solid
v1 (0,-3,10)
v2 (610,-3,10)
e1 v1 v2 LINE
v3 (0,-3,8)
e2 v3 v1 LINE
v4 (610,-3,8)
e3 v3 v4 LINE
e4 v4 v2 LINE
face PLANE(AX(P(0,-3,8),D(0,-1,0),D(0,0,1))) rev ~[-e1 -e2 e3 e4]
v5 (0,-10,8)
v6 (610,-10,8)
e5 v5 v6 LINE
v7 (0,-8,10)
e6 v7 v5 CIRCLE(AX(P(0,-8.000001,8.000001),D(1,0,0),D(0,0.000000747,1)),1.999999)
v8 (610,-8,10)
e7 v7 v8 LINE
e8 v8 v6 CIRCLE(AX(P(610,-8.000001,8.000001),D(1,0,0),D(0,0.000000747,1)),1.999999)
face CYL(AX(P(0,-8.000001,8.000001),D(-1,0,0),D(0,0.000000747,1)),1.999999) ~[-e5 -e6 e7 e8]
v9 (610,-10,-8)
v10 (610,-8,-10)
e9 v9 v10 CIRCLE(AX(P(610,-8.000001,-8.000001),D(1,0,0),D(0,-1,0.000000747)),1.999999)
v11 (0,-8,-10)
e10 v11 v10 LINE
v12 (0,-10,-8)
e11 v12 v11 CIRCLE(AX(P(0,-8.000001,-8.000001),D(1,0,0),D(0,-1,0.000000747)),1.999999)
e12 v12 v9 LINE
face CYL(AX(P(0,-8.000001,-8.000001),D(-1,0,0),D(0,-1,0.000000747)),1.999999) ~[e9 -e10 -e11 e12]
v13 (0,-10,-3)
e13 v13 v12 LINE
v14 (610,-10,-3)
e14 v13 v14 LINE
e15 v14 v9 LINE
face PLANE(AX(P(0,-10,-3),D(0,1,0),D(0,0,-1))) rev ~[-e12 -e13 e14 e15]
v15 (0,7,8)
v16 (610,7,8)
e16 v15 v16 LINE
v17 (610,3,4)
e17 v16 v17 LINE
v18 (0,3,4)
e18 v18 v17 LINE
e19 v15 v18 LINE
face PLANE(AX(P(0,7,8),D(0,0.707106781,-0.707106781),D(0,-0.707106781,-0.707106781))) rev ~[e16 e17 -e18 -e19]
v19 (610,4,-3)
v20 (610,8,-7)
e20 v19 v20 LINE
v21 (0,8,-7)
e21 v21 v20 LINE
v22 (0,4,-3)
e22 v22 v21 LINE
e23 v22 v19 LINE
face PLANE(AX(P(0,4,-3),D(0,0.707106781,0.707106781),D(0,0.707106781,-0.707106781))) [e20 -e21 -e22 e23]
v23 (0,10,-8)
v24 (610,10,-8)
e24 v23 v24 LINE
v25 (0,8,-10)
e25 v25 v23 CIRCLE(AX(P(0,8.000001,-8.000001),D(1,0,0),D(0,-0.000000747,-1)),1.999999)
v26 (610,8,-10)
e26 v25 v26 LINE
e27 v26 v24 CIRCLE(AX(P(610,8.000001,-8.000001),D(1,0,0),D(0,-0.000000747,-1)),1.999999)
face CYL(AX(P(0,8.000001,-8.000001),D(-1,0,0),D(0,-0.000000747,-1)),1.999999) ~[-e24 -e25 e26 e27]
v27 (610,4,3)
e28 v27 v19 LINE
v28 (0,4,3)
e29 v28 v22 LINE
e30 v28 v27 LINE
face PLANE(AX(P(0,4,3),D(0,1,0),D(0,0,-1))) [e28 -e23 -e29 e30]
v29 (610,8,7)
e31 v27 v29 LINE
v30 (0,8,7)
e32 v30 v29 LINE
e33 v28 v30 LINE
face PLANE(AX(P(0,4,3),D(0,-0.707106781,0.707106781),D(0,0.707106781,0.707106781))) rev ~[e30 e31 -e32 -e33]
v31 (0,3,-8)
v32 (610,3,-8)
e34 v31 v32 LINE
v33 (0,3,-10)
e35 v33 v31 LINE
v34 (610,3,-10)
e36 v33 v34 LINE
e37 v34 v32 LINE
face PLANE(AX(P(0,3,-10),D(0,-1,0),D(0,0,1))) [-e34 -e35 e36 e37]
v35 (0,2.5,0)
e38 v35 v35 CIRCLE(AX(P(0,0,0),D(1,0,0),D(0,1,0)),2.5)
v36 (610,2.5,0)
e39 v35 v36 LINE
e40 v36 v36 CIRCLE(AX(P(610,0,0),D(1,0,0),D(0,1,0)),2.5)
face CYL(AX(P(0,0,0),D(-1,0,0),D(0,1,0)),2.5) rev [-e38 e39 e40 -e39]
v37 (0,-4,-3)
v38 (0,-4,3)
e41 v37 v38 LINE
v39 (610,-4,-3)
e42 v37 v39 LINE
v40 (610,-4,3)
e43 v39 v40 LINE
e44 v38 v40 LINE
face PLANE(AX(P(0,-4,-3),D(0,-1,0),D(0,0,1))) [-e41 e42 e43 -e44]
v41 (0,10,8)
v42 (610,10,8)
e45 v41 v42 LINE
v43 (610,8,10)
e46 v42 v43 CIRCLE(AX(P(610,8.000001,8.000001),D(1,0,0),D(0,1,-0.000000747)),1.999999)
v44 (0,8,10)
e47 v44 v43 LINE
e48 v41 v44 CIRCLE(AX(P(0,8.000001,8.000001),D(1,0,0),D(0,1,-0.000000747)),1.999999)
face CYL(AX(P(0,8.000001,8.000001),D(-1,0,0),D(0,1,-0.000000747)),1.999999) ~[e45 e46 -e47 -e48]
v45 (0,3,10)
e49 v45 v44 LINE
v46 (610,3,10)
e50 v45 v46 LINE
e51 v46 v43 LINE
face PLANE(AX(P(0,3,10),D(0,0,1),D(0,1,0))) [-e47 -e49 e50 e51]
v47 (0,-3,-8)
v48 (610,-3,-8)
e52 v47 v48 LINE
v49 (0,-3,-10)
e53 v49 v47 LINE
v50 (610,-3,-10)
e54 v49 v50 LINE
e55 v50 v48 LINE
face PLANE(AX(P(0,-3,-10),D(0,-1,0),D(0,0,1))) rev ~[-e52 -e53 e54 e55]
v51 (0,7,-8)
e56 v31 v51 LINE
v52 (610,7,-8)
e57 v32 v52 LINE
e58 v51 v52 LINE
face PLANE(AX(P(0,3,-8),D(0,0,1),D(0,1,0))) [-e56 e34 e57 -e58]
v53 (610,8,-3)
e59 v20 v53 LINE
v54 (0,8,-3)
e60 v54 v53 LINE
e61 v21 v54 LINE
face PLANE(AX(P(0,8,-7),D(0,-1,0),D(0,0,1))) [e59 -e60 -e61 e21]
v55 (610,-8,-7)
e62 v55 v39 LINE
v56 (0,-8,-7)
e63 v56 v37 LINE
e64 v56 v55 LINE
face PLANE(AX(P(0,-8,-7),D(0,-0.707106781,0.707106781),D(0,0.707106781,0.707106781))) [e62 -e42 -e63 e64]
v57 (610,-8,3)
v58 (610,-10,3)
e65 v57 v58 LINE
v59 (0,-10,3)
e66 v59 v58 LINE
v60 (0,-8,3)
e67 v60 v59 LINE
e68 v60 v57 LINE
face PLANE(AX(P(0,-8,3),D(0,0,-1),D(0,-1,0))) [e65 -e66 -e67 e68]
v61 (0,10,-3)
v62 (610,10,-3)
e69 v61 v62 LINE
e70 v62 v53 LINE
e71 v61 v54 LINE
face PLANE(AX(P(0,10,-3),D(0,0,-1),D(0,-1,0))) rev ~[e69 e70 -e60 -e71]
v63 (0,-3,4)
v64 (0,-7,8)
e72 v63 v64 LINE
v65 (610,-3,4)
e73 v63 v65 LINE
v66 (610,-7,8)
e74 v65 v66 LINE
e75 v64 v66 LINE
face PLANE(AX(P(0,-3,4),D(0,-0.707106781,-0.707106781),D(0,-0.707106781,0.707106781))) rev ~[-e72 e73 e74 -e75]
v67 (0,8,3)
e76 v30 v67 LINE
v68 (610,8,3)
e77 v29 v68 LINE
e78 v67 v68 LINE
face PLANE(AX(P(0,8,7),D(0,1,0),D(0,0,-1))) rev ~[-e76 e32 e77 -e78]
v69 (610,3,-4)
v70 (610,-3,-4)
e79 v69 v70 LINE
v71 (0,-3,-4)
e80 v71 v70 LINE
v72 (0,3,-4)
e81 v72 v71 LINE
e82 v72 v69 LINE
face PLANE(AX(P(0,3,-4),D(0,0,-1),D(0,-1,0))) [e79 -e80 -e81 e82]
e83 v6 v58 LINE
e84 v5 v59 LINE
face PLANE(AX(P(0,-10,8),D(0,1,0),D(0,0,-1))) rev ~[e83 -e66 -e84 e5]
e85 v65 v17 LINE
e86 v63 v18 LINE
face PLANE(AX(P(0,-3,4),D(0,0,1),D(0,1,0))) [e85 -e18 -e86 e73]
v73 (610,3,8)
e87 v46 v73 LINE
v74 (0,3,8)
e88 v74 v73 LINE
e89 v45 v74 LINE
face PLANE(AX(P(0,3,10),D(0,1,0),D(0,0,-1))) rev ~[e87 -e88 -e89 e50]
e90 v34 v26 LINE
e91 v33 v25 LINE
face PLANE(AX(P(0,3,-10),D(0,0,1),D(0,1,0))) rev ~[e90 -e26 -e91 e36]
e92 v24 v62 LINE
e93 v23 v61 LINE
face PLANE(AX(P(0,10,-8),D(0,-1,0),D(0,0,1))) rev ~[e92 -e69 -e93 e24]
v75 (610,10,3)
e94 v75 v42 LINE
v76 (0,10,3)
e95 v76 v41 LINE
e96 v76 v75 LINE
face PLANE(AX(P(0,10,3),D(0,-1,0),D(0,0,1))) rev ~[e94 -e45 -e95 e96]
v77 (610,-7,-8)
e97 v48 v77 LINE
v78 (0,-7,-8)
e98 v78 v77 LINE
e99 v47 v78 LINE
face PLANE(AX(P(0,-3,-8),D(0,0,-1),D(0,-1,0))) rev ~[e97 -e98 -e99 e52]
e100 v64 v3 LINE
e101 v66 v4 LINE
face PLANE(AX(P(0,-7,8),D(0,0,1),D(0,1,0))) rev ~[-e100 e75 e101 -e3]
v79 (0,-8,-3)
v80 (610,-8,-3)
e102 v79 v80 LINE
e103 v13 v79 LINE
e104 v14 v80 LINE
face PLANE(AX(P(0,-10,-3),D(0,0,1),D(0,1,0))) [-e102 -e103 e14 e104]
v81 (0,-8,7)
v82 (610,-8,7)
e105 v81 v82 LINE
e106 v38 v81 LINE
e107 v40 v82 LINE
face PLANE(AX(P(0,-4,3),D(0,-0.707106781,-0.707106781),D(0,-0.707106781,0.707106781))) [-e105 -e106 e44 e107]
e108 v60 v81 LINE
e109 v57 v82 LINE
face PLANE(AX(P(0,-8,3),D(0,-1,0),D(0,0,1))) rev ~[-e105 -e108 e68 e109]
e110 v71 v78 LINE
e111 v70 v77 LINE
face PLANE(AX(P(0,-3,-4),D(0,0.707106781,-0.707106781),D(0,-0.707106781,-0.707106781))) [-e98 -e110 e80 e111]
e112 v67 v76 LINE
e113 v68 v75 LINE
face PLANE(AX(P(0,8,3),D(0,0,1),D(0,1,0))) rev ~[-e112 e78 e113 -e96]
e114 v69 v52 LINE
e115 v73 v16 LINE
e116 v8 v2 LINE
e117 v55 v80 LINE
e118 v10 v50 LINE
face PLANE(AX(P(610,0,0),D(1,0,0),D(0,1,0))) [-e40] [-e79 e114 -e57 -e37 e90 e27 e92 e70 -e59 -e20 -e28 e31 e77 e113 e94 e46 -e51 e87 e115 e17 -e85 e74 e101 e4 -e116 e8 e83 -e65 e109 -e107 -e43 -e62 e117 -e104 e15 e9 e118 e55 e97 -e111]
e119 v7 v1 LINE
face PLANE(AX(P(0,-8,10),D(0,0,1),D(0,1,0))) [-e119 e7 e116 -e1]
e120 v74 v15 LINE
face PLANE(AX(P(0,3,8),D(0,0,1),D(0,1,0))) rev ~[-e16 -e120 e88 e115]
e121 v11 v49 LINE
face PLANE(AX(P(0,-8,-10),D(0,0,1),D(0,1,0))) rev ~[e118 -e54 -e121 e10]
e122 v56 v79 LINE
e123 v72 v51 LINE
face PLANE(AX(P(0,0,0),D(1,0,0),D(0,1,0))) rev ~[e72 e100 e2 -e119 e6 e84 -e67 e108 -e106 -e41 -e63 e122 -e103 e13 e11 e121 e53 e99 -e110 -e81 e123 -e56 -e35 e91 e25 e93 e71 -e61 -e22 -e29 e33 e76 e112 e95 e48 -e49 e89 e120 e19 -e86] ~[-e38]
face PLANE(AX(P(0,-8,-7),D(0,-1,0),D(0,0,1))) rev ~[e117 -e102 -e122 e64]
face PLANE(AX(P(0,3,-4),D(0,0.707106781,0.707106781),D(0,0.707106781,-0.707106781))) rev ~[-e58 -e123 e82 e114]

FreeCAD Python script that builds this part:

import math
import FreeCAD as App
import Part
import Sketcher

V = App.Vector
Q = App.Units.Quantity

doc = App.newDocument("Part")
body = doc.addObject("PartDesign::Body", "Body")

# Sketch on YZ plane
sketch1 = body.newObject("Sketcher::SketchObject", "Sketch")
sketch1.AttachmentSupport = (doc.getObject("YZ_Plane"), [""])
sketch1.MapMode = "FlatFace"
sketch1.addGeometry([
    Part.ArcOfCircle(Part.Circle(V(-8.000001, 8.000001, 0), V(0, 0, 1), 1.999999), math.radians(89.999957), math.radians(180.000043)),  # 0
    Part.LineSegment(V(-10, 8, 0), V(-10, 3, 0)),  # 1
    Part.LineSegment(V(-10, 3, 0), V(-8, 3, 0)),  # 2
    Part.LineSegment(V(-8, 3, 0), V(-8, 7, 0)),  # 3
    Part.LineSegment(V(-8, 7, 0), V(-4, 3, 0)),  # 4
    Part.LineSegment(V(-4, 3, 0), V(-4, -3, 0)),  # 5
    Part.LineSegment(V(-4, -3, 0), V(-8, -7, 0)),  # 6
    Part.LineSegment(V(-8, -7, 0), V(-8, -3, 0)),  # 7
    Part.LineSegment(V(-8, -3, 0), V(-10, -3, 0)),  # 8
    Part.LineSegment(V(-10, -3, 0), V(-10, -8, 0)),  # 9
    Part.ArcOfCircle(Part.Circle(V(-8.000001, -8.000001, 0), V(0, 0, 1), 1.999999), math.radians(179.999957), math.radians(270.000043)),  # 10
    Part.LineSegment(V(-8, -10, 0), V(-3, -10, 0)),  # 11
    Part.LineSegment(V(-3, -10, 0), V(-3, -8, 0)),  # 12
    Part.LineSegment(V(-3, -8, 0), V(-7, -8, 0)),  # 13
    Part.LineSegment(V(-7, -8, 0), V(-3, -4, 0)),  # 14
    Part.LineSegment(V(-3, -4, 0), V(3, -4, 0)),  # 15
    Part.LineSegment(V(3, -4, 0), V(7, -8, 0)),  # 16
    Part.LineSegment(V(7, -8, 0), V(3, -8, 0)),  # 17
    Part.LineSegment(V(3, -8, 0), V(3, -10, 0)),  # 18
    Part.LineSegment(V(3, -10, 0), V(8, -10, 0)),  # 19
    Part.ArcOfCircle(Part.Circle(V(8.000001, -8.000001, 0), V(0, 0, 1), 1.999999), math.radians(-90.000043), math.radians(0.000043)),  # 20
    Part.LineSegment(V(10, -8, 0), V(10, -3, 0)),  # 21
    Part.LineSegment(V(10, -3, 0), V(8, -3, 0)),  # 22
    Part.LineSegment(V(8, -3, 0), V(8, -7, 0)),  # 23
    Part.LineSegment(V(8, -7, 0), V(4, -3, 0)),  # 24
    Part.LineSegment(V(4, -3, 0), V(4, 3, 0)),  # 25
    Part.LineSegment(V(4, 3, 0), V(8, 7, 0)),  # 26
    Part.LineSegment(V(8, 7, 0), V(8, 3, 0)),  # 27
    Part.LineSegment(V(8, 3, 0), V(10, 3, 0)),  # 28
    Part.LineSegment(V(10, 3, 0), V(10, 8, 0)),  # 29
    Part.ArcOfCircle(Part.Circle(V(8.000001, 8.000001, 0), V(0, 0, 1), 1.999999), math.radians(-0.000043), math.radians(90.000043)),  # 30
    Part.LineSegment(V(8, 10, 0), V(3, 10, 0)),  # 31
    Part.LineSegment(V(3, 10, 0), V(3, 8, 0)),  # 32
    Part.LineSegment(V(3, 8, 0), V(7, 8, 0)),  # 33
    Part.LineSegment(V(7, 8, 0), V(3, 4, 0)),  # 34
    Part.LineSegment(V(3, 4, 0), V(-3, 4, 0)),  # 35
    Part.LineSegment(V(-3, 4, 0), V(-7, 8, 0)),  # 36
    Part.LineSegment(V(-7, 8, 0), V(-3, 8, 0)),  # 37
    Part.LineSegment(V(-3, 8, 0), V(-3, 10, 0)),  # 38
    Part.LineSegment(V(-3, 10, 0), V(-8, 10, 0)),  # 39
    Part.Circle(V(0, 0, 0), V(0, 0, 1), 2.5),  # 40
], False)
sketch1.addConstraint([
    Sketcher.Constraint("Tangent", 0, 2, 1, 1),
    Sketcher.Constraint("Coincident", 1, 2, 2, 1),
    Sketcher.Constraint("Coincident", 2, 2, 3, 1),
    Sketcher.Constraint("Coincident", 3, 2, 4, 1),
    Sketcher.Constraint("Coincident", 4, 2, 5, 1),
    Sketcher.Constraint("Coincident", 5, 2, 6, 1),
    Sketcher.Constraint("Coincident", 6, 2, 7, 1),
    Sketcher.Constraint("Coincident", 7, 2, 8, 1),
    Sketcher.Constraint("Coincident", 8, 2, 9, 1),
    Sketcher.Constraint("Tangent", 9, 2, 10, 1),
    Sketcher.Constraint("Tangent", 10, 2, 11, 1),
    Sketcher.Constraint("Coincident", 11, 2, 12, 1),
    Sketcher.Constraint("Coincident", 12, 2, 13, 1),
    Sketcher.Constraint("Coincident", 13, 2, 14, 1),
    Sketcher.Constraint("Coincident", 14, 2, 15, 1),
    Sketcher.Constraint("Coincident", 15, 2, 16, 1),
    Sketcher.Constraint("Coincident", 16, 2, 17, 1),
    Sketcher.Constraint("Coincident", 17, 2, 18, 1),
    Sketcher.Constraint("Coincident", 18, 2, 19, 1),
    Sketcher.Constraint("Tangent", 19, 2, 20, 1),
    Sketcher.Constraint("Tangent", 20, 2, 21, 1),
    Sketcher.Constraint("Coincident", 21, 2, 22, 1),
    Sketcher.Constraint("Coincident", 22, 2, 23, 1),
    Sketcher.Constraint("Coincident", 23, 2, 24, 1),
    Sketcher.Constraint("Coincident", 24, 2, 25, 1),
    Sketcher.Constraint("Coincident", 25, 2, 26, 1),
    Sketcher.Constraint("Coincident", 26, 2, 27, 1),
    Sketcher.Constraint("Coincident", 27, 2, 28, 1),
    Sketcher.Constraint("Coincident", 28, 2, 29, 1),
    Sketcher.Constraint("Tangent", 29, 2, 30, 1),
    Sketcher.Constraint("Tangent", 30, 2, 31, 1),
    Sketcher.Constraint("Coincident", 31, 2, 32, 1),
    Sketcher.Constraint("Coincident", 32, 2, 33, 1),
    Sketcher.Constraint("Coincident", 33, 2, 34, 1),
    Sketcher.Constraint("Coincident", 34, 2, 35, 1),
    Sketcher.Constraint("Coincident", 35, 2, 36, 1),
    Sketcher.Constraint("Coincident", 36, 2, 37, 1),
    Sketcher.Constraint("Coincident", 37, 2, 38, 1),
    Sketcher.Constraint("Coincident", 38, 2, 39, 1),
    Sketcher.Constraint("Tangent", 39, 2, 0, 1),
    Sketcher.Constraint("Vertical", 1),
    Sketcher.Constraint("Horizontal", 2),
    Sketcher.Constraint("Vertical", 3),
    Sketcher.Constraint("Vertical", 5),
    Sketcher.Constraint("Vertical", 7),
    Sketcher.Constraint("Horizontal", 8),
    Sketcher.Constraint("Vertical", 9),
    Sketcher.Constraint("Horizontal", 11),
    Sketcher.Constraint("Vertical", 12),
    Sketcher.Constraint("Horizontal", 13),
    Sketcher.Constraint("Horizontal", 15),
    Sketcher.Constraint("Horizontal", 17),
    Sketcher.Constraint("Vertical", 18),
    Sketcher.Constraint("Horizontal", 19),
    Sketcher.Constraint("Vertical", 21),
    Sketcher.Constraint("Horizontal", 22),
    Sketcher.Constraint("Vertical", 23),
    Sketcher.Constraint("Vertical", 25),
    Sketcher.Constraint("Vertical", 27),
    Sketcher.Constraint("Horizontal", 28),
    Sketcher.Constraint("Vertical", 29),
    Sketcher.Constraint("Horizontal", 31),
    Sketcher.Constraint("Vertical", 32),
    Sketcher.Constraint("Horizontal", 33),
    Sketcher.Constraint("Horizontal", 35),
    Sketcher.Constraint("Horizontal", 37),
    Sketcher.Constraint("Vertical", 38),
    Sketcher.Constraint("Horizontal", 39),
    Sketcher.Constraint("Coincident", 40, 3, -1, 1),
    Sketcher.Constraint("Equal", 0, 10),
    Sketcher.Constraint("Equal", 10, 20),
    Sketcher.Constraint("Equal", 20, 30),
    Sketcher.Constraint("Symmetric", 0, 3, 20, 3, -1, 1),
    Sketcher.Constraint("Symmetric", 10, 3, 30, 3, -1, 1),
    Sketcher.Constraint("Symmetric", 2, 2, 22, 2, -1, 1),
    Sketcher.Constraint("Symmetric", 4, 2, 24, 2, -1, 1),
    Sketcher.Constraint("Symmetric", 6, 2, 26, 2, -1, 1),
    Sketcher.Constraint("Symmetric", 12, 2, 32, 2, -1, 1),
    Sketcher.Constraint("Symmetric", 14, 2, 34, 2, -1, 1),
    Sketcher.Constraint("Symmetric", 16, 2, 36, 2, -1, 1),
    Sketcher.Constraint("Symmetric", 10, 3, 20, 3, -2),
    Sketcher.Constraint("Symmetric", 13, 2, 16, 2, -2),
    Sketcher.Constraint("Symmetric", 7, 2, 22, 2, -2),
    Sketcher.Constraint("Perpendicular", 4, 6),
    Sketcher.Constraint("Parallel", 6, 14),
    Sketcher.Constraint("Perpendicular", 14, 16),
    Sketcher.Constraint("Parallel", 16, 24),
    Sketcher.Constraint("Perpendicular", 24, 26),
    Sketcher.Constraint("Parallel", 26, 34),
    Sketcher.Constraint("Perpendicular", 34, 36),
    Sketcher.Constraint("Horizontal", 2, 2, 4, 2),
    Sketcher.Constraint("Horizontal", 5, 2, 7, 2),
    Sketcher.Constraint("Horizontal", 9, 2, 12, 2),
    Sketcher.Constraint("Horizontal", 6, 2, 23, 2),
    Sketcher.Constraint("Horizontal", 25, 2, 27, 2),
    Sketcher.Constraint("Vertical", 10, 3, 2, 2),
    Sketcher.Constraint("Vertical", 12, 2, 14, 2),
    Sketcher.Constraint("Vertical", 15, 2, 17, 2),
    Sketcher.Constraint("Vertical", 35, 2, 37, 2),
    Sketcher.Constraint("Equal", 39, 1),
    Sketcher.Constraint("Equal", 37, 3),
    Sketcher.Constraint("Equal", 35, 5),
    Sketcher.Constraint("Diameter", 40, Q("5 mm")),
    Sketcher.Constraint("Radius", 0, Q("1.999999 mm")),
    Sketcher.Constraint("DistanceX", 11, 1, 11, 2, Q("5 mm")),
    Sketcher.Constraint("DistanceX", 13, 2, 13, 1, Q("4 mm")),
    Sketcher.Constraint("DistanceX", 15, 1, 15, 2, Q("6 mm")),
])
pad1 = body.newObject("PartDesign::Pad", "Pad")
pad1.Profile = sketch1
pad1.Length = 610

doc.recompute()
